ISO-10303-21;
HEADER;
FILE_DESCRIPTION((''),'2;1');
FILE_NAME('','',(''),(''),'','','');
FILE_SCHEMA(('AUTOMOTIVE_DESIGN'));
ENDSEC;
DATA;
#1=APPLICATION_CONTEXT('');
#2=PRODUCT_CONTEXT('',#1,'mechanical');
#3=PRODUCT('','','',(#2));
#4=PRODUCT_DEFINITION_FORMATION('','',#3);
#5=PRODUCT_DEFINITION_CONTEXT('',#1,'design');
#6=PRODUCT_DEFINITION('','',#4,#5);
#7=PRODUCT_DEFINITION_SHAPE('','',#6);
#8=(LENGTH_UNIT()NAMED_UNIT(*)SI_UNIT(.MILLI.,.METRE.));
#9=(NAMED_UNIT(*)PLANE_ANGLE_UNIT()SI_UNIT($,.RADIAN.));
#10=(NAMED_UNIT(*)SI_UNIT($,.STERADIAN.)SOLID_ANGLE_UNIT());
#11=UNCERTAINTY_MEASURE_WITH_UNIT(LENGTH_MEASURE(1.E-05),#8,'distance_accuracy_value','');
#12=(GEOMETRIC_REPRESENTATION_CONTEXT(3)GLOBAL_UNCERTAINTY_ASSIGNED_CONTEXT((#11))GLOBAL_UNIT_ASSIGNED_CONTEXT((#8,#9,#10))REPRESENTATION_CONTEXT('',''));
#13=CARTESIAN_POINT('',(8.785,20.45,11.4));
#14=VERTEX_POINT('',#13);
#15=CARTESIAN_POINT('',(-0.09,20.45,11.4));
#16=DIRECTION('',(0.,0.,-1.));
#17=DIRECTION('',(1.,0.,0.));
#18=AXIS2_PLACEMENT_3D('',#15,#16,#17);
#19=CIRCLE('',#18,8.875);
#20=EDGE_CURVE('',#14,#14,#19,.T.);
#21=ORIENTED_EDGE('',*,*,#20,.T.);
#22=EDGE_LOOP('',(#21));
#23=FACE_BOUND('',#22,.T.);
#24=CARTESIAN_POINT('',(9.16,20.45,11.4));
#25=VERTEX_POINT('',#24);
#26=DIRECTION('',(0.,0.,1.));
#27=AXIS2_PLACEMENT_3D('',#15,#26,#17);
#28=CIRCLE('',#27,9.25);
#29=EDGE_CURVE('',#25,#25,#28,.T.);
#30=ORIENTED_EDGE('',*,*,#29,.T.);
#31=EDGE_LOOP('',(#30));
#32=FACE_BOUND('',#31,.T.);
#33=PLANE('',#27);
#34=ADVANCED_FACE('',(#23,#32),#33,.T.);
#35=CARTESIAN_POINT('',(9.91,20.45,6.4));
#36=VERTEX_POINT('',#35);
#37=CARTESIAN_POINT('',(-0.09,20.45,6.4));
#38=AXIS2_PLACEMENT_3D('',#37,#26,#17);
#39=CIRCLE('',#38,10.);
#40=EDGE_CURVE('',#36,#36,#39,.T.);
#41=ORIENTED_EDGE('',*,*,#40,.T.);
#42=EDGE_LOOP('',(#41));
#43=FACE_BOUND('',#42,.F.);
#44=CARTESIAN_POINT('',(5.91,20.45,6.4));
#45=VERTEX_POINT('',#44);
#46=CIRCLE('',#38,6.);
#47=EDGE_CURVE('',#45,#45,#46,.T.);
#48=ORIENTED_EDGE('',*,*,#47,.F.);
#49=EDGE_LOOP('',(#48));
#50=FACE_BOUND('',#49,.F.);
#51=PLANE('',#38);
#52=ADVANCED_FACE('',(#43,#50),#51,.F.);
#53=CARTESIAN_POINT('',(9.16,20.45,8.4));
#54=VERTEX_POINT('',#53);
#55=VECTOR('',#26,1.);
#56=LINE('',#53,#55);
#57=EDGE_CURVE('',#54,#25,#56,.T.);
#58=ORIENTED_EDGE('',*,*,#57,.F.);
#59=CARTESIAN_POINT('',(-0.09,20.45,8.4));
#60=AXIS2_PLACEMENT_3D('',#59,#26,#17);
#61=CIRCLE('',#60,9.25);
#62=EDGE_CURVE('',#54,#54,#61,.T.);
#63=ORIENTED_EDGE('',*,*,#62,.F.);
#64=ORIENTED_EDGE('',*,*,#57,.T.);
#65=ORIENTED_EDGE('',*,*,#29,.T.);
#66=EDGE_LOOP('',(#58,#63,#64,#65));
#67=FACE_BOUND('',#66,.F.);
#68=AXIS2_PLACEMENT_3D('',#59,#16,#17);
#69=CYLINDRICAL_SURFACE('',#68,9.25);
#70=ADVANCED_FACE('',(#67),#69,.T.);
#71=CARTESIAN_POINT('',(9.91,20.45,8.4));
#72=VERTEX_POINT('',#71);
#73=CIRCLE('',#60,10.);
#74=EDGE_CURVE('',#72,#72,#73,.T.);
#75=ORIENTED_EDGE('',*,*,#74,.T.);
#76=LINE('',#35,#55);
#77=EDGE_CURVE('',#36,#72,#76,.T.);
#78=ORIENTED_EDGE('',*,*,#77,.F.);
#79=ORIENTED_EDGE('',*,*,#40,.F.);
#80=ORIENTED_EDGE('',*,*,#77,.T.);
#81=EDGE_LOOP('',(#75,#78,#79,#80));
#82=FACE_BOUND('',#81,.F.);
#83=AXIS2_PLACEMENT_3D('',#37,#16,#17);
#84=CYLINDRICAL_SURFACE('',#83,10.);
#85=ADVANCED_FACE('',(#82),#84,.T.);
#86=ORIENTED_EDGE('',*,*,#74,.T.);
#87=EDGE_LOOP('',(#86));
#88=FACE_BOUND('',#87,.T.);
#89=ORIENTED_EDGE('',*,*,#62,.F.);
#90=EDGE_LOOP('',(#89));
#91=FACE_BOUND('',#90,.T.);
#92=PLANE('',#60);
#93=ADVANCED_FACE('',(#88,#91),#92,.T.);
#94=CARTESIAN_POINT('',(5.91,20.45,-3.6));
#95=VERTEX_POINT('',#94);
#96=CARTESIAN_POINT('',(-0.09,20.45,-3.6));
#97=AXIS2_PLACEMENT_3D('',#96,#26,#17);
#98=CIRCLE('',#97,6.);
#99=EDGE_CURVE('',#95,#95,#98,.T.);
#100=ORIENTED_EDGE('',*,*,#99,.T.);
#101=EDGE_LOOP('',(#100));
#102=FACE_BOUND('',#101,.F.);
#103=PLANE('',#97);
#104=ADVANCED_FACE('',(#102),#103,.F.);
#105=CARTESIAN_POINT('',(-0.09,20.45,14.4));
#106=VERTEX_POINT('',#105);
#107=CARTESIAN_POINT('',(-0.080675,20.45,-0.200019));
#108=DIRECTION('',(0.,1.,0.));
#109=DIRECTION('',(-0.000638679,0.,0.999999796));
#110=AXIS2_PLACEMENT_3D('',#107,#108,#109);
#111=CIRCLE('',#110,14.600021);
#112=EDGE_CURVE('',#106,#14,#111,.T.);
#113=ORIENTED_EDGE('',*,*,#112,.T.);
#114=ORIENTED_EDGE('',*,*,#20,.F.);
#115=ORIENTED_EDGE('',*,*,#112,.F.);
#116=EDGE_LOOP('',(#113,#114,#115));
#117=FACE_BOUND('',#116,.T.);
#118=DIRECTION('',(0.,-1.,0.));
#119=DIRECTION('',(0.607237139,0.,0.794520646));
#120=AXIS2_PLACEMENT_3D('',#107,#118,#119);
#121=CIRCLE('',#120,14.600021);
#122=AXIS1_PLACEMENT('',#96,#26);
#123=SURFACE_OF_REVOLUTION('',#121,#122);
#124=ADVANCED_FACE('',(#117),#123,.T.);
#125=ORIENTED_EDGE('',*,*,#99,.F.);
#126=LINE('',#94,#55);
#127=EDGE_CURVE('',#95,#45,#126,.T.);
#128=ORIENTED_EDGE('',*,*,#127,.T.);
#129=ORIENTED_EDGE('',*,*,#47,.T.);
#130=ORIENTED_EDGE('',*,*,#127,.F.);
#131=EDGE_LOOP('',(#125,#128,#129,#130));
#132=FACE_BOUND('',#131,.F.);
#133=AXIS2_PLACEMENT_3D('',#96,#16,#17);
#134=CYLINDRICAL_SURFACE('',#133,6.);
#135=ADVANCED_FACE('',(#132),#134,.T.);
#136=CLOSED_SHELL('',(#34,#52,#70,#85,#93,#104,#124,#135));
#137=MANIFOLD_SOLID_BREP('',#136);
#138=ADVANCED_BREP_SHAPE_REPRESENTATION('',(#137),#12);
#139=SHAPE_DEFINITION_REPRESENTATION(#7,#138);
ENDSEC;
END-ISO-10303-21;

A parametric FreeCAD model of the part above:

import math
import FreeCAD as App
import Part
import Sketcher

V = App.Vector

doc = App.newDocument("Part")
params = doc.addObject("Spreadsheet::Sheet", "Params")
for row, (alias, value) in enumerate([
    ("sketch1_diameter", "12 mm"),
    ("pad1_length", "10 mm"),
    ("sketch2_diameter", "20 mm"),
    ("pad2_length", "2 mm"),
    ("sketch3_diameter", "18.5 mm"),
    ("pad3_length", "3 mm"),
    ("sketch4_diameter", "17.75 mm"),
    ("pocket1_length", "0.2 mm"),
    ("sketch5_diameter", "17.75 mm"),
    ("pad4_length", "3.2 mm"),
    ("sketch6_height", "4 mm"),
    ("sketch6_height2", "1 mm"),
    ("groove_angle", "360 deg"),
], start=1):
    params.set(f"A{row}", alias)
    params.set(f"B{row}", "=" + value)
    params.setAlias(f"B{row}", alias)

body = doc.addObject("PartDesign::Body", "Body")

sketch1 = body.newObject("Sketcher::SketchObject", "Sketch")
sketch1.AttachmentSupport = (doc.getObject("XY_Plane"), [""])
sketch1.MapMode = "FlatFace"
sketch1.addGeometry(Part.Circle(V(0, 0, 0), V(0, 0, 1), 6), False)
sketch1.addConstraint([
    Sketcher.Constraint("Coincident", 0, 3, -1, 1),
    Sketcher.Constraint("Diameter", 0, 12.0),
])
sketch1.setExpression("Constraints[1]", "Params.sketch1_diameter")
pad1 = body.newObject("PartDesign::Pad", "Pad")
pad1.Profile = sketch1
pad1.setExpression("Length", "Params.pad1_length")

sketch2 = body.newObject("Sketcher::SketchObject", "Sketch001")
sketch2.AttachmentSupport = (doc.getObject("XY_Plane"), [""])
sketch2.MapMode = "FlatFace"
sketch2.AttachmentOffset = App.Placement(V(0, 0, 10), App.Rotation())
sketch2.addGeometry(Part.Circle(V(0, 0, 0), V(0, 0, 1), 10), False)
sketch2.addConstraint([
    Sketcher.Constraint("Coincident", 0, 3, -1, 1),
    Sketcher.Constraint("Diameter", 0, 20.0),
])
sketch2.setExpression("Constraints[1]", "Params.sketch2_diameter")
pad2 = body.newObject("PartDesign::Pad", "Pad001")
pad2.Profile = sketch2
pad2.setExpression("Length", "Params.pad2_length")

sketch3 = body.newObject("Sketcher::SketchObject", "Sketch002")
sketch3.AttachmentSupport = (doc.getObject("XY_Plane"), [""])
sketch3.MapMode = "FlatFace"
sketch3.AttachmentOffset = App.Placement(V(0, 0, 12), App.Rotation())
sketch3.addGeometry(Part.Circle(V(0, 0, 0), V(0, 0, 1), 9), False)
sketch3.addConstraint([
    Sketcher.Constraint("Coincident", 0, 3, -1, 1),
    Sketcher.Constraint("Diameter", 0, 18.5),
])
sketch3.setExpression("Constraints[1]", "Params.sketch3_diameter")
pad3 = body.newObject("PartDesign::Pad", "Pad002")
pad3.Profile = sketch3
pad3.setExpression("Length", "Params.pad3_length")

sketch4 = body.newObject("Sketcher::SketchObject", "Sketch003")
sketch4.AttachmentSupport = (doc.getObject("XY_Plane"), [""])
sketch4.MapMode = "FlatFace"
sketch4.AttachmentOffset = App.Placement(V(0, 0, 15), App.Rotation())
sketch4.addGeometry(Part.Circle(V(0, 0, 0), V(0, 0, 1), 9), False)
sketch4.addConstraint([
    Sketcher.Constraint("Coincident", 0, 3, -1, 1),
    Sketcher.Constraint("Diameter", 0, 17.75),
])
sketch4.setExpression("Constraints[1]", "Params.sketch4_diameter")
pocket1 = body.newObject("PartDesign::Pocket", "Pocket")
pocket1.Profile = sketch4
pocket1.setExpression("Length", "Params.pocket1_length")

sketch5 = body.newObject("Sketcher::SketchObject", "Sketch004")
sketch5.AttachmentSupport = (doc.getObject("XY_Plane"), [""])
sketch5.MapMode = "FlatFace"
sketch5.AttachmentOffset = App.Placement(V(0, 0, 14.8), App.Rotation())
sketch5.addGeometry(Part.Circle(V(0, 0, 0), V(0, 0, 1), 9), False)
sketch5.addConstraint([
    Sketcher.Constraint("Coincident", 0, 3, -1, 1),
    Sketcher.Constraint("Diameter", 0, 17.75),
])
sketch5.setExpression("Constraints[1]", "Params.sketch5_diameter")
pad4 = body.newObject("PartDesign::Pad", "Pad003")
pad4.Profile = sketch5
pad4.setExpression("Length", "Params.pad4_length")

sketch6 = body.newObject("Sketcher::SketchObject", "Sketch005")
sketch6.AttachmentSupport = (doc.getObject("XZ_Plane"), [""])
sketch6.MapMode = "FlatFace"
sketch6.addGeometry([
    Part.ArcOfCircle(Part.Circle(V(0, 3.4, 0), V(0, 0, 1), 14.6), math.radians(53), math.radians(90)),
    Part.LineSegment(V(8.9, 15, 0), V(8.9, 19, 0)),
    Part.LineSegment(V(8.9, 19, 0), V(0, 19, 0)),
    Part.LineSegment(V(0, 19, 0), V(0, 18, 0)),
], False)
sketch6.addConstraint([
    Sketcher.Constraint("Coincident", 0, 1, 1, 1),
    Sketcher.Constraint("Coincident", 1, 2, 2, 1),
    Sketcher.Constraint("Coincident", 2, 2, 3, 1),
    Sketcher.Constraint("Coincident", 3, 2, 0, 2),
    Sketcher.Constraint("Vertical", 1),
    Sketcher.Constraint("Horizontal", 2),
    Sketcher.Constraint("Vertical", 3),
    Sketcher.Constraint("PointOnObject", 2, 2, -2),
    Sketcher.Constraint("DistanceY", 1, 1, 1, 2, 4.0),
    Sketcher.Constraint("DistanceY", 3, 2, 3, 1, 1.0),
    Sketcher.Constraint("DistanceY", -1, 1, 0, 1, 15.0),
    Sketcher.Constraint("DistanceX", 2, 2, 2, 1, 8.875),
    Sketcher.Constraint("Radius", 0, 14.600021),
])
sketch6.setExpression("Constraints[8]", "Params.sketch6_height")
sketch6.setExpression("Constraints[9]", "Params.sketch6_height2")
groove = body.newObject("PartDesign::Groove", "Groove")
groove.Profile = sketch6
groove.ReferenceAxis = (sketch6, ["V_Axis"])
groove.setExpression("Angle", "Params.groove_angle")
body2 = doc.addObject("PartDesign::Body", "Body001")
doc.recompute()

body.Placement = App.Placement(V(-0.09, 20.45, -3.6), App.Rotation(V(0, 0, 1), 0))
boolean = body2.newObject("PartDesign::Boolean", "Boolean")
boolean.Type = "Fuse"
boolean.addObjects([body])

doc.recompute()
